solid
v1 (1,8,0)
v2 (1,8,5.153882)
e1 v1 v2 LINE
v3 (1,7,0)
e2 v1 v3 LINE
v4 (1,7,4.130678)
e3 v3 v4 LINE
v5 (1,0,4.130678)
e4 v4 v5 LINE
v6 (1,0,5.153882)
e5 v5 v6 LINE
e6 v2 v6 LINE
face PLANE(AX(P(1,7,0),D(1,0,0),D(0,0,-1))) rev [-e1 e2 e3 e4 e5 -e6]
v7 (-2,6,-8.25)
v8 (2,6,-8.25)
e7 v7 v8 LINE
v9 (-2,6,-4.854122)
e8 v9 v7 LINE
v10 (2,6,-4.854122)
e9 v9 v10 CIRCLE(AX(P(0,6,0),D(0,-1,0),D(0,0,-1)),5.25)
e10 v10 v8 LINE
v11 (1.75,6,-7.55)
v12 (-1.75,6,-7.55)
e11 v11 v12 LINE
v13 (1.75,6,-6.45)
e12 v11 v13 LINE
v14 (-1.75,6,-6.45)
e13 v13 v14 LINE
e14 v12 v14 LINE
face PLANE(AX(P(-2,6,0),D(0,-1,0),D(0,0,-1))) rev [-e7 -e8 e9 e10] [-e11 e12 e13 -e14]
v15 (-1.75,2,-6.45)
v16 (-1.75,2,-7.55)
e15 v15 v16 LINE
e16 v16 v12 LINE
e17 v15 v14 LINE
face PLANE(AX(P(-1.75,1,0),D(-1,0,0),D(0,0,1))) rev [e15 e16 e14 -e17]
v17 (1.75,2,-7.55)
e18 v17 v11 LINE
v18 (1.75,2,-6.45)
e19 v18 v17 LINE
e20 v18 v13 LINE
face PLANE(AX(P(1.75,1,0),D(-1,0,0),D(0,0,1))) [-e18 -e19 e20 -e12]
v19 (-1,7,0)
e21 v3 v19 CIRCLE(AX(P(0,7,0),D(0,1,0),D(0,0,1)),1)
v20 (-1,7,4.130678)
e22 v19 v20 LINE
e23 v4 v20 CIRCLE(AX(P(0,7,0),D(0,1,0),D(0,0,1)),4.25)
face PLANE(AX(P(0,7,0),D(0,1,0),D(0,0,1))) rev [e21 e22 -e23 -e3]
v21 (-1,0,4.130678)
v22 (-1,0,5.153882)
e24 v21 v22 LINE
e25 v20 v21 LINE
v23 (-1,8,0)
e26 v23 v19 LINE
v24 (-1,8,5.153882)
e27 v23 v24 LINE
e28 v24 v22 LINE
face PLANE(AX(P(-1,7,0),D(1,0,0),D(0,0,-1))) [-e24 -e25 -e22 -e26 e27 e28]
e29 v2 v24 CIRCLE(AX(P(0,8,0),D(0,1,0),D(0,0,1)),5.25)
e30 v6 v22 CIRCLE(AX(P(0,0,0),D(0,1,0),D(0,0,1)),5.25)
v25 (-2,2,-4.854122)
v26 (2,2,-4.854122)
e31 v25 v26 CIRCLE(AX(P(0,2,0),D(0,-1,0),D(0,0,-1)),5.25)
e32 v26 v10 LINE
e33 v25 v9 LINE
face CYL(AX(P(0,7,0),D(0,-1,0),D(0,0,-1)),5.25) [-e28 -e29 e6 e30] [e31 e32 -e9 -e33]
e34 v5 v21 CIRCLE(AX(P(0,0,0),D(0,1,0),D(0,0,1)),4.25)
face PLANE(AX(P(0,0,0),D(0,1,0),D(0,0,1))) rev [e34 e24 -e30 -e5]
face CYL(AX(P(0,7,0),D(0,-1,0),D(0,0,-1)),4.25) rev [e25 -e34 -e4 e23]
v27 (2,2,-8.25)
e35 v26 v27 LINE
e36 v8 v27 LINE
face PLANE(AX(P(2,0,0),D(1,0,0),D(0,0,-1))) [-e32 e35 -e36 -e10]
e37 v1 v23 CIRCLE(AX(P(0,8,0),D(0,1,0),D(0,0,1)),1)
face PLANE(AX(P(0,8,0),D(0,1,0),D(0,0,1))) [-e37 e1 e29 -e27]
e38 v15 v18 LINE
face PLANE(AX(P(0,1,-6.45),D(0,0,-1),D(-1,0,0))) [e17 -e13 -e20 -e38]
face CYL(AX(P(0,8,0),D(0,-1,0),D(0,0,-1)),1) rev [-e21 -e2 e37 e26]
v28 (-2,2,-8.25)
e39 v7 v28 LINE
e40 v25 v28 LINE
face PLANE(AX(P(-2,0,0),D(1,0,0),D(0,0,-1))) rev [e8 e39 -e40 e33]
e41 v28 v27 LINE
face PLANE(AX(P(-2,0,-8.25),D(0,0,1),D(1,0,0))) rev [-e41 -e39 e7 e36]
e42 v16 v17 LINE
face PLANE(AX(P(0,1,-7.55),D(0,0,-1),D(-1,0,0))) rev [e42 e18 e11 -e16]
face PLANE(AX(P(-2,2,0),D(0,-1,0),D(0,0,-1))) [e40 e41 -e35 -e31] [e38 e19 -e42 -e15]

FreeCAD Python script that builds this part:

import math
import FreeCAD as App
import Part
import Sketcher
from FreeCAD import Vector

doc = App.newDocument("Part")
params = doc.addObject("Spreadsheet::Sheet", "Params")
for row, (alias, value) in enumerate([
    ("sketch1_radius", "4.25 mm"),
    ("sketch1_radius2", "5.25 mm"),
    ("pad1_length", "7 mm"),
    ("sketch2_radius", "1 mm"),
    ("sketch2_radius2", "5.25 mm"),
    ("pad2_length", "1 mm"),
    ("sketch3_width", "4 mm"),
    ("pad3_length", "2 mm"),
    ("pad3_length2", "2 mm"),
    ("sketch4_width", "3.5 mm"),
    ("sketch4_height", "1.1 mm"),
    ("pocket1_length", "5 mm"),
], start=1):
    params.set(f"A{row}", alias)
    params.set(f"B{row}", "=" + value)
    params.setAlias(f"B{row}", alias)

body = doc.addObject("PartDesign::Body", "Body")

# Sketch on XZ plane
sketch1 = doc.addObject("Sketcher::SketchObject", "Sketch")
body.addObject(sketch1)
sketch1.AttachmentSupport = (doc.XZ_Plane, [""])
sketch1.MapMode = "FlatFace"
sketch1.addGeometry([
    Part.LineSegment(Vector(-1, 5.2, 0), Vector(-1, 4.1, 0)),  # 0
    Part.ArcOfCircle(Part.Circle(Vector(0, 0, 0), Vector(0, 0, 1), 4.2), math.radians(104), math.radians(360)),  # 1
    Part.ArcOfCircle(Part.Circle(Vector(0, 0, 0), Vector(0, 0, 1), 4.2), math.radians(0), math.radians(76)),  # 2
    Part.LineSegment(Vector(1, 4.1, 0), Vector(1, 5.2, 0)),  # 3
    Part.ArcOfCircle(Part.Circle(Vector(0, 0, 0), Vector(0, 0, 1), 5.2), math.radians(0), math.radians(79)),  # 4
    Part.ArcOfCircle(Part.Circle(Vector(0, 0, 0), Vector(0, 0, 1), 5.2), math.radians(101), math.radians(360)),  # 5
], False)
sketch1.addConstraint([
    Sketcher.Constraint("Coincident", 0, 2, 1, 1),
    Sketcher.Constraint("Tangent", 1, 2, 2, 1),
    Sketcher.Constraint("Coincident", 2, 2, 3, 1),
    Sketcher.Constraint("Coincident", 3, 2, 4, 2),
    Sketcher.Constraint("Tangent", 4, 1, 5, 2),
    Sketcher.Constraint("Coincident", 5, 1, 0, 1),
    Sketcher.Constraint("Vertical", 0),
    Sketcher.Constraint("Vertical", 3),
    Sketcher.Constraint("Coincident", 1, 3, -1, 1),
    Sketcher.Constraint("Coincident", 4, 3, -1, 1),
    Sketcher.Constraint("Equal", 1, 2),
    Sketcher.Constraint("Equal", 4, 5),
    Sketcher.Constraint("PointOnObject", 1, 2, -1),
    Sketcher.Constraint("PointOnObject", 4, 1, -1),
    Sketcher.Constraint("Horizontal", 0, 2, 2, 2),
    Sketcher.Constraint("Radius", 1, 4.25),
    Sketcher.Constraint("Radius", 4, 5.25),
    Sketcher.Constraint("DistanceX", 0, 2, -1, 1, 1.0),
])
sketch1.setExpression("Constraints[15]", "Params.sketch1_radius")
sketch1.setExpression("Constraints[16]", "Params.sketch1_radius2")
pad1 = doc.addObject("PartDesign::Pad", "Pad")
body.addObject(pad1)
pad1.Profile = sketch1
pad1.setExpression("Length", "Params.pad1_length")
pad1.Reversed = True

# Sketch on XZ plane
sketch2 = doc.addObject("Sketcher::SketchObject", "Sketch001")
body.addObject(sketch2)
sketch2.AttachmentSupport = (doc.XZ_Plane, [""])
sketch2.MapMode = "FlatFace"
sketch2.AttachmentOffset = App.Placement(Vector(0, 0, -7), App.Rotation())
sketch2.addGeometry([
    Part.ArcOfCircle(Part.Circle(Vector(0, 0, 0), Vector(0, 0, 1), 1), math.radians(180), math.radians(360)),
    Part.LineSegment(Vector(1, 0, 0), Vector(1, 5.2, 0)),
    Part.ArcOfCircle(Part.Circle(Vector(0, 0, 0), Vector(0, 0, 1), 5.2), math.radians(101), math.radians(439)),
    Part.LineSegment(Vector(-1, 5.2, 0), Vector(-1, 0, 0)),
], False)
sketch2.addConstraint([
    Sketcher.Constraint("Tangent", 0, 2, 1, 1),
    Sketcher.Constraint("Coincident", 1, 2, 2, 2),
    Sketcher.Constraint("Coincident", 2, 1, 3, 1),
    Sketcher.Constraint("Tangent", 3, 2, 0, 1),
    Sketcher.Constraint("Vertical", 1),
    Sketcher.Constraint("Vertical", 3),
    Sketcher.Constraint("Coincident", 0, 3, -1, 1),
    Sketcher.Constraint("Coincident", 2, 3, -1, 1),
    Sketcher.Constraint("Radius", 0, 1.0),
    Sketcher.Constraint("Radius", 2, 5.25),
])
sketch2.setExpression("Constraints[8]", "Params.sketch2_radius")
sketch2.setExpression("Constraints[9]", "Params.sketch2_radius2")
pad2 = doc.addObject("PartDesign::Pad", "Pad001")
body.addObject(pad2)
pad2.Profile = sketch2
pad2.setExpression("Length", "Params.pad2_length")
pad2.Reversed = True

# Sketch on YZ plane
sketch3 = doc.addObject("Sketcher::SketchObject", "Sketch002")
body.addObject(sketch3)
sketch3.AttachmentSupport = (doc.YZ_Plane, [""])
sketch3.MapMode = "FlatFace"
sketch3.addGeometry([
    Part.LineSegment(Vector(6, -8.2, 0), Vector(6, -4.2, 0)),
    Part.LineSegment(Vector(6, -4.2, 0), Vector(2, -4.2, 0)),
    Part.LineSegment(Vector(2, -4.2, 0), Vector(2, -8.2, 0)),
    Part.LineSegment(Vector(2, -8.2, 0), Vector(6, -8.2, 0)),
], False)
sketch3.addConstraint([
    Sketcher.Constraint("Coincident", 0, 2, 1, 1),
    Sketcher.Constraint("Coincident", 1, 2, 2, 1),
    Sketcher.Constraint("Coincident", 2, 2, 3, 1),
    Sketcher.Constraint("Coincident", 3, 2, 0, 1),
    Sketcher.Constraint("Vertical", 0),
    Sketcher.Constraint("Horizontal", 1),
    Sketcher.Constraint("Vertical", 2),
    Sketcher.Constraint("Horizontal", 3),
    Sketcher.Constraint("Equal", 3, 0),
    Sketcher.Constraint("DistanceX", 1, 2, 1, 1, 4.0),
    Sketcher.Constraint("DistanceX", -1, 1, 0, 2, 6.0),
    Sketcher.Constraint("DistanceY", 0, 2, -1, 1, 4.25),
])
sketch3.setExpression("Constraints[9]", "Params.sketch3_width")
pad3 = doc.addObject("PartDesign::Pad", "Pad002")
body.addObject(pad3)
pad3.Profile = sketch3
pad3.Type = "TwoLengths"
pad3.setExpression("Length", "Params.pad3_length")
pad3.setExpression("Length2", "Params.pad3_length2")

# Sketch on XZ plane
sketch4 = doc.addObject("Sketcher::SketchObject", "Sketch003")
body.addObject(sketch4)
sketch4.AttachmentSupport = (doc.XZ_Plane, [""])
sketch4.MapMode = "FlatFace"
sketch4.AttachmentOffset = App.Placement(Vector(0, 0, -6), App.Rotation())
sketch4.addGeometry([
    Part.LineSegment(Vector(1.8, -7.5, 0), Vector(-1.8, -7.5, 0)),
    Part.LineSegment(Vector(-1.8, -7.5, 0), Vector(-1.8, -6.5, 0)),
    Part.LineSegment(Vector(-1.8, -6.5, 0), Vector(1.8, -6.5, 0)),
    Part.LineSegment(Vector(1.8, -6.5, 0), Vector(1.8, -7.5, 0)),
], False)
sketch4.addConstraint([
    Sketcher.Constraint("Coincident", 0, 2, 1, 1),
    Sketcher.Constraint("Coincident", 1, 2, 2, 1),
    Sketcher.Constraint("Coincident", 2, 2, 3, 1),
    Sketcher.Constraint("Coincident", 3, 2, 0, 1),
    Sketcher.Constraint("Horizontal", 0),
    Sketcher.Constraint("Vertical", 1),
    Sketcher.Constraint("Horizontal", 2),
    Sketcher.Constraint("Vertical", 3),
    Sketcher.Constraint("DistanceX", 0, 2, 0, 1, 3.5),
    Sketcher.Constraint("DistanceY", 1, 1, 1, 2, 1.1),
    Sketcher.Constraint("DistanceX", 0, 2, -1, 1, 1.75),
    Sketcher.Constraint("DistanceY", 0, 2, -1, 1, 7.55),
])
sketch4.setExpression("Constraints[8]", "Params.sketch4_width")
sketch4.setExpression("Constraints[9]", "Params.sketch4_height")
pocket1 = doc.addObject("PartDesign::Pocket", "Pocket")
body.addObject(pocket1)
pocket1.Profile = sketch4
pocket1.setExpression("Length", "Params.pocket1_length")
pocket1.Reversed = True

doc.recompute()
